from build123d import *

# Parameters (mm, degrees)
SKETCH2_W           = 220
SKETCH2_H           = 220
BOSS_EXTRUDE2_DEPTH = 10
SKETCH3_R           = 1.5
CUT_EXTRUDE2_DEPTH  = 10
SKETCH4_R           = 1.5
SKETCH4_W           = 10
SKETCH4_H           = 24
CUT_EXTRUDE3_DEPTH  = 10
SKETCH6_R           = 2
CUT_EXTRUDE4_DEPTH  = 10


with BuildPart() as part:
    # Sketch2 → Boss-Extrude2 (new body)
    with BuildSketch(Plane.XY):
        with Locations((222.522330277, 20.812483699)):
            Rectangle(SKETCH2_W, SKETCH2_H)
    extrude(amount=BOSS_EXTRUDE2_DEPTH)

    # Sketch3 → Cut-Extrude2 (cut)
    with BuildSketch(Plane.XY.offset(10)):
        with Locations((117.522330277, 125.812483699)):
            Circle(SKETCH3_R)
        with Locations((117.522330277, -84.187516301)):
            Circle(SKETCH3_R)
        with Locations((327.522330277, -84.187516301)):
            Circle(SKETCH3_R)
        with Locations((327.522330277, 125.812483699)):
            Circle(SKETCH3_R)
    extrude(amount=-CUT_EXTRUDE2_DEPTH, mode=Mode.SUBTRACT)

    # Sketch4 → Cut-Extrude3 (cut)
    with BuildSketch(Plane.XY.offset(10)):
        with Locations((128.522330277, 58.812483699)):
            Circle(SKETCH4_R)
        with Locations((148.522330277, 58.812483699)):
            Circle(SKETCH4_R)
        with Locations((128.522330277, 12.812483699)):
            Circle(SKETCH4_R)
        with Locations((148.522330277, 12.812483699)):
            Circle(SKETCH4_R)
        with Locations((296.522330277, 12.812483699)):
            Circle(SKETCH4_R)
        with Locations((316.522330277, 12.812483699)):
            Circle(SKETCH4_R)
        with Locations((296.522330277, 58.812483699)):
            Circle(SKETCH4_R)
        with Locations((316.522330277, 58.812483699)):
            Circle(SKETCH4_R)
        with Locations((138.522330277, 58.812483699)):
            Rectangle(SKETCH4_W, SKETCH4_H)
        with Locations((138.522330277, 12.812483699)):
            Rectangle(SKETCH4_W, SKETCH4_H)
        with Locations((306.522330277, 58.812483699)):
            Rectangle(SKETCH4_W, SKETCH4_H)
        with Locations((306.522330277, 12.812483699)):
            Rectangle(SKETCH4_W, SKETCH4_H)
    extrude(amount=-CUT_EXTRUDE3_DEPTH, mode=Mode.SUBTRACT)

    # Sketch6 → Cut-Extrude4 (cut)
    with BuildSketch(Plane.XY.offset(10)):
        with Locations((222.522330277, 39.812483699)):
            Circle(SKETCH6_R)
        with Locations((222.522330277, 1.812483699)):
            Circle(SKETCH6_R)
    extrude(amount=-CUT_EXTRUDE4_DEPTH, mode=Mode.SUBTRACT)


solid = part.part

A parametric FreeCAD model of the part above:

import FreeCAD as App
import Part
import Sketcher


def add_polygon(sketch, points):
    """Adds a closed chain of lines whose ends are joined by coincident constraints."""
    first, n = sketch.GeometryCount, len(points)
    for a, b in zip(points, points[1:] + points[:1]):
        sketch.addGeometry(Part.LineSegment(App.Vector(*a, 0), App.Vector(*b, 0)), False)
    for i in range(n):
        sketch.addConstraint(Sketcher.Constraint("Coincident", first + i, 2, first + (i + 1) % n, 1))

doc = App.newDocument("Part")
body = doc.addObject("PartDesign::Body", "Body")

sketch1 = doc.addObject("Sketcher::SketchObject", "Sketch")
body.addObject(sketch1)
sketch1.AttachmentSupport = (doc.XY_Plane, [""])
sketch1.MapMode = "FlatFace"
add_polygon(sketch1, [(113, 131), (113, -89), (333, -89), (333, 131)])
sketch1.addConstraint(Sketcher.Constraint("Vertical", 0))
sketch1.addConstraint(Sketcher.Constraint("Horizontal", 1))
sketch1.addConstraint(Sketcher.Constraint("Vertical", 2))
sketch1.addConstraint(Sketcher.Constraint("Horizontal", 3))
sketch1.addConstraint(Sketcher.Constraint("Equal", 3, 0))
sketch1.addConstraint(Sketcher.Constraint("DistanceX", 1, 1, 1, 2, 220.0))
sketch1.addConstraint(Sketcher.Constraint("DistanceX", -1, 1, 0, 2, 112.52233))
sketch1.addConstraint(Sketcher.Constraint("DistanceY", 0, 2, -1, 1, 89.187516))
pad1 = doc.addObject("PartDesign::Pad", "Pad")
body.addObject(pad1)
pad1.Profile = sketch1
pad1.Length = 10

sketch2 = doc.addObject("Sketcher::SketchObject", "Sketch001")
body.addObject(sketch2)
sketch2.AttachmentSupport = (doc.XY_Plane, [""])
sketch2.MapMode = "FlatFace"
sketch2.AttachmentOffset = App.Placement(App.Vector(0, 0, 10), App.Rotation())
sketch2.addGeometry(Part.Circle(App.Vector(117.5, 125.8, 0), App.Vector(0, 0, 1), 1.5), False)
sketch2.addGeometry(Part.Circle(App.Vector(117.5, -84.2, 0), App.Vector(0, 0, 1), 1.5), False)
sketch2.addGeometry(Part.Circle(App.Vector(327.5, -84.2, 0), App.Vector(0, 0, 1), 1.5), False)
sketch2.addGeometry(Part.Circle(App.Vector(327.5, 125.8, 0), App.Vector(0, 0, 1), 1.5), False)
sketch2.addConstraint(Sketcher.Constraint("Equal", 0, 1))
sketch2.addConstraint(Sketcher.Constraint("Equal", 1, 2))
sketch2.addConstraint(Sketcher.Constraint("Equal", 2, 3))
sketch2.addConstraint(Sketcher.Constraint("Horizontal", 1, 3, 2, 3))
sketch2.addConstraint(Sketcher.Constraint("Horizontal", 0, 3, 3, 3))
sketch2.addConstraint(Sketcher.Constraint("Vertical", 0, 3, 1, 3))
sketch2.addConstraint(Sketcher.Constraint("Vertical", 2, 3, 3, 3))
sketch2.addConstraint(Sketcher.Constraint("Diameter", 0, 3.0))
sketch2.addConstraint(Sketcher.Constraint("DistanceY", 1, 3, 0, 3, 210.0))
sketch2.addConstraint(Sketcher.Constraint("DistanceX", 1, 3, 2, 3, 210.0))
sketch2.addConstraint(Sketcher.Constraint("DistanceX", -1, 1, 0, 3, 117.52233))
sketch2.addConstraint(Sketcher.Constraint("DistanceY", -1, 1, 0, 3, 125.812484))
pocket1 = doc.addObject("PartDesign::Pocket", "Pocket")
body.addObject(pocket1)
pocket1.Profile = sketch2
pocket1.Length = 10

sketch3 = doc.addObject("Sketcher::SketchObject", "Sketch002")
body.addObject(sketch3)
sketch3.AttachmentSupport = (doc.XY_Plane, [""])
sketch3.MapMode = "FlatFace"
sketch3.AttachmentOffset = App.Placement(App.Vector(0, 0, 10), App.Rotation())
sketch3.addGeometry(Part.Circle(App.Vector(128.5, 58.8, 0), App.Vector(0, 0, 1), 1.5), False)
sketch3.addGeometry(Part.Circle(App.Vector(148.5, 58.8, 0), App.Vector(0, 0, 1), 1.5), False)
sketch3.addGeometry(Part.Circle(App.Vector(128.5, 12.8, 0), App.Vector(0, 0, 1), 1.5), False)
sketch3.addGeometry(Part.Circle(App.Vector(148.5, 12.8, 0), App.Vector(0, 0, 1), 1.5), False)
sketch3.addGeometry(Part.Circle(App.Vector(296.5, 12.8, 0), App.Vector(0, 0, 1), 1.5), False)
sketch3.addGeometry(Part.Circle(App.Vector(316.5, 12.8, 0), App.Vector(0, 0, 1), 1.5), False)
sketch3.addGeometry(Part.Circle(App.Vector(296.5, 58.8, 0), App.Vector(0, 0, 1), 1.5), False)
sketch3.addGeometry(Part.Circle(App.Vector(316.5, 58.8, 0), App.Vector(0, 0, 1), 1.5), False)
add_polygon(sketch3, [(133.5, 70.8), (133.5, 46.8), (143.5, 46.8), (143.5, 70.8)])
add_polygon(sketch3, [(133.5, 24.8), (133.5, 0.8), (143.5, 0.8), (143.5, 24.8)])
add_polygon(sketch3, [(301.5, 70.8), (301.5, 46.8), (311.5, 46.8), (311.5, 70.8)])
add_polygon(sketch3, [(301.5, 24.8), (301.5, 0.8), (311.5, 0.8), (311.5, 24.8)])
sketch3.addConstraint(Sketcher.Constraint("Vertical", 8))
sketch3.addConstraint(Sketcher.Constraint("Horizontal", 9))
sketch3.addConstraint(Sketcher.Constraint("Vertical", 10))
sketch3.addConstraint(Sketcher.Constraint("Horizontal", 11))
sketch3.addConstraint(Sketcher.Constraint("Vertical", 12))
sketch3.addConstraint(Sketcher.Constraint("Horizontal", 13))
sketch3.addConstraint(Sketcher.Constraint("Vertical", 14))
sketch3.addConstraint(Sketcher.Constraint("Horizontal", 15))
sketch3.addConstraint(Sketcher.Constraint("Vertical", 16))
sketch3.addConstraint(Sketcher.Constraint("Horizontal", 17))
sketch3.addConstraint(Sketcher.Constraint("Vertical", 18))
sketch3.addConstraint(Sketcher.Constraint("Horizontal", 19))
sketch3.addConstraint(Sketcher.Constraint("Vertical", 20))
sketch3.addConstraint(Sketcher.Constraint("Horizontal", 21))
sketch3.addConstraint(Sketcher.Constraint("Vertical", 22))
sketch3.addConstraint(Sketcher.Constraint("Horizontal", 23))
sketch3.addConstraint(Sketcher.Constraint("Equal", 0, 1))
sketch3.addConstraint(Sketcher.Constraint("Equal", 1, 2))
sketch3.addConstraint(Sketcher.Constraint("Equal", 2, 3))
sketch3.addConstraint(Sketcher.Constraint("Equal", 3, 4))
sketch3.addConstraint(Sketcher.Constraint("Equal", 4, 5))
sketch3.addConstraint(Sketcher.Constraint("Equal", 5, 6))
sketch3.addConstraint(Sketcher.Constraint("Equal", 6, 7))
sketch3.addConstraint(Sketcher.Constraint("Horizontal", 0, 3, 1, 3))
sketch3.addConstraint(Sketcher.Constraint("Horizontal", 2, 3, 3, 3))
sketch3.addConstraint(Sketcher.Constraint("Horizontal", 3, 3, 4, 3))
sketch3.addConstraint(Sketcher.Constraint("Horizontal", 4, 3, 5, 3))
sketch3.addConstraint(Sketcher.Constraint("Horizontal", 1, 3, 6, 3))
sketch3.addConstraint(Sketcher.Constraint("Horizontal", 6, 3, 7, 3))
sketch3.addConstraint(Sketcher.Constraint("Horizontal", 9, 2, 16, 2))
sketch3.addConstraint(Sketcher.Constraint("Horizontal", 11, 2, 18, 2))
sketch3.addConstraint(Sketcher.Constraint("Horizontal", 13, 2, 20, 2))
sketch3.addConstraint(Sketcher.Constraint("Horizontal", 15, 2, 22, 2))
sketch3.addConstraint(Sketcher.Constraint("Vertical", 0, 3, 2, 3))
sketch3.addConstraint(Sketcher.Constraint("Vertical", 1, 3, 3, 3))
sketch3.addConstraint(Sketcher.Constraint("Vertical", 4, 3, 6, 3))
sketch3.addConstraint(Sketcher.Constraint("Vertical", 5, 3, 7, 3))
sketch3.addConstraint(Sketcher.Constraint("Vertical", 11, 2, 12, 2))
sketch3.addConstraint(Sketcher.Constraint("Vertical", 10, 2, 13, 2))
sketch3.addConstraint(Sketcher.Constraint("Vertical", 19, 2, 20, 2))
sketch3.addConstraint(Sketcher.Constraint("Vertical", 18, 2, 21, 2))
sketch3.addConstraint(Sketcher.Constraint("Equal", 15, 17))
sketch3.addConstraint(Sketcher.Constraint("Equal", 10, 12))
sketch3.addConstraint(Sketcher.Constraint("Diameter", 0, 3.0))
sketch3.addConstraint(Sketcher.Constraint("DistanceX", 9, 1, 9, 2, 10.0))
sketch3.addConstraint(Sketcher.Constraint("DistanceY", 8, 2, 8, 1, 24.0))
sketch3.addConstraint(Sketcher.Constraint("DistanceX", 0, 3, 1, 3, 20.0))
sketch3.addConstraint(Sketcher.Constraint("DistanceY", 2, 3, 0, 3, 46.0))
sketch3.addConstraint(Sketcher.Constraint("DistanceX", 3, 3, 4, 3, 148.0))
sketch3.addConstraint(Sketcher.Constraint("DistanceX", 4, 3, 5, 3, 20.0))
sketch3.addConstraint(Sketcher.Constraint("DistanceX", 0, 3, 8, 2, 5.0))
sketch3.addConstraint(Sketcher.Constraint("DistanceY", 8, 2, 0, 3, 12.0))
sketch3.addConstraint(Sketcher.Constraint("DistanceY", 12, 2, 2, 3, 12.0))
sketch3.addConstraint(Sketcher.Constraint("DistanceX", 6, 3, 16, 2, 5.0))
sketch3.addConstraint(Sketcher.Constraint("DistanceX", -1, 1, 0, 3, 128.52233))
sketch3.addConstraint(Sketcher.Constraint("DistanceY", -1, 1, 0, 3, 58.812484))
pocket2 = doc.addObject("PartDesign::Pocket", "Pocket001")
body.addObject(pocket2)
pocket2.Profile = sketch3
pocket2.Length = 10

sketch4 = doc.addObject("Sketcher::SketchObject", "Sketch003")
body.addObject(sketch4)
sketch4.AttachmentSupport = (doc.XY_Plane, [""])
sketch4.MapMode = "FlatFace"
sketch4.AttachmentOffset = App.Placement(App.Vector(0, 0, 10), App.Rotation())
sketch4.addGeometry(Part.Circle(App.Vector(222.5, 39.8, 0), App.Vector(0, 0, 1), 2), False)
sketch4.addGeometry(Part.Circle(App.Vector(222.5, 1.8, 0), App.Vector(0, 0, 1), 2), False)
sketch4.addConstraint(Sketcher.Constraint("Equal", 0, 1))
sketch4.addConstraint(Sketcher.Constraint("Vertical", 0, 3, 1, 3))
sketch4.addConstraint(Sketcher.Constraint("Diameter", 0, 4.0))
sketch4.addConstraint(Sketcher.Constraint("DistanceY", 1, 3, 0, 3, 38.0))
sketch4.addConstraint(Sketcher.Constraint("DistanceX", -1, 1, 0, 3, 222.52233))
sketch4.addConstraint(Sketcher.Constraint("DistanceY", -1, 1, 0, 3, 39.812484))
pocket3 = doc.addObject("PartDesign::Pocket", "Pocket002")
body.addObject(pocket3)
pocket3.Profile = sketch4
pocket3.Length = 10

doc.recompute()
